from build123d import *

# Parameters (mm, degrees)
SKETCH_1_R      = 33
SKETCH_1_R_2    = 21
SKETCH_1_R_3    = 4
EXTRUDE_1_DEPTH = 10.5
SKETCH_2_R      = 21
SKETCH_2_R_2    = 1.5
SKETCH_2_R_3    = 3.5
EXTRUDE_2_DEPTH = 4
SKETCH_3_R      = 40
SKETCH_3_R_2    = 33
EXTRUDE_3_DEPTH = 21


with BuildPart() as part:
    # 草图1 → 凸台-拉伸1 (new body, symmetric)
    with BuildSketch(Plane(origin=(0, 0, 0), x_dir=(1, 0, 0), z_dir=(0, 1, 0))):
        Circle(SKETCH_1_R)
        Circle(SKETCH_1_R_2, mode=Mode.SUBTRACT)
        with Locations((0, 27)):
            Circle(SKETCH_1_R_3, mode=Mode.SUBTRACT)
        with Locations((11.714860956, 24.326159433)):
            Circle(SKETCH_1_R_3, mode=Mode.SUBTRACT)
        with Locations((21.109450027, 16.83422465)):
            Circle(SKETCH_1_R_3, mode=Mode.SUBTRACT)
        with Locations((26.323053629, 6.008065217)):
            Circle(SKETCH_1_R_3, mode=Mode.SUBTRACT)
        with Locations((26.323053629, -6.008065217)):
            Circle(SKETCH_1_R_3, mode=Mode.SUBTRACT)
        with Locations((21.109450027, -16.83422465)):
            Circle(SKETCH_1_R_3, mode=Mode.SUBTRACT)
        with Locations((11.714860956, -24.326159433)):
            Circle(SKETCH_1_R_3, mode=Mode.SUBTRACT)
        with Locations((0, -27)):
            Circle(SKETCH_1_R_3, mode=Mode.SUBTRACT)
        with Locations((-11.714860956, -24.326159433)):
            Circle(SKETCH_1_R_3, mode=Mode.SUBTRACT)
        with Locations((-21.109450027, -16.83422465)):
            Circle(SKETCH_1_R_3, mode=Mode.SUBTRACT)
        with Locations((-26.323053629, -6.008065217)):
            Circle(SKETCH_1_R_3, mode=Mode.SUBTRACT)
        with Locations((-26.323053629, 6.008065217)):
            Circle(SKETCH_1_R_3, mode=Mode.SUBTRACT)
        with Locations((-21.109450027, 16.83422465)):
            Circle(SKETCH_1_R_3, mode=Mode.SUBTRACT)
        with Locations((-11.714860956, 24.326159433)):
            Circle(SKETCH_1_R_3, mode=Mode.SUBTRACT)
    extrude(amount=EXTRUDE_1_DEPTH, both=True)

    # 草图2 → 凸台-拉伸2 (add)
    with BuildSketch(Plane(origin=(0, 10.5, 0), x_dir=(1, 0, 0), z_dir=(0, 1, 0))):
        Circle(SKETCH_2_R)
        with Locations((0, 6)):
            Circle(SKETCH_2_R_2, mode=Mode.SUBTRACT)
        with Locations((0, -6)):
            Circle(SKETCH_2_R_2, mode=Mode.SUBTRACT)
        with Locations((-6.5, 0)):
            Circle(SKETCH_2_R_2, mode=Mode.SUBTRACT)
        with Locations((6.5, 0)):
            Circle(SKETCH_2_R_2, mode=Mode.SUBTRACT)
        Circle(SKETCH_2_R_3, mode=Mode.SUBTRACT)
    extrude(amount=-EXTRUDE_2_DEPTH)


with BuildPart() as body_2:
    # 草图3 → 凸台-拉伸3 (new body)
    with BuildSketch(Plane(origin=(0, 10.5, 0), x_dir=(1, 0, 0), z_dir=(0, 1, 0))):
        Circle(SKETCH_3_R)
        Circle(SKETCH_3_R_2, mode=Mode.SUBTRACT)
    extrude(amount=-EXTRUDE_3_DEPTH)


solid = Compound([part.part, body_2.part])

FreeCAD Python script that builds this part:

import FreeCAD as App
import Part
import Sketcher

doc = App.newDocument("Part")
body = doc.addObject("PartDesign::Body", "Body")

sketch1 = body.newObject("Sketcher::SketchObject", "Sketch")
sketch1.AttachmentSupport = (doc.getObject("XZ_Plane"), [""])
sketch1.MapMode = "FlatFace"
sketch1.addGeometry([
    Part.Circle(App.Vector(0, 0, 0), App.Vector(0, 0, 1), 33),
    Part.Circle(App.Vector(-21.10945, 16.834225, 0), App.Vector(0, 0, 1), 4),
    Part.Circle(App.Vector(-11.714861, 24.326159, 0), App.Vector(0, 0, 1), 4),
    Part.Circle(App.Vector(0, 27, 0), App.Vector(0, 0, 1), 4),
    Part.Circle(App.Vector(-26.323054, 6.008065, 0), App.Vector(0, 0, 1), 4),
    Part.Circle(App.Vector(11.714861, 24.326159, 0), App.Vector(0, 0, 1), 4),
    Part.Circle(App.Vector(21.10945, 16.834225, 0), App.Vector(0, 0, 1), 4),
    Part.Circle(App.Vector(26.323054, 6.008065, 0), App.Vector(0, 0, 1), 4),
    Part.Circle(App.Vector(-26.323054, -6.008065, 0), App.Vector(0, 0, 1), 4),
    Part.Circle(App.Vector(0, 0, 0), App.Vector(0, 0, 1), 21),
    Part.Circle(App.Vector(-21.10945, -16.834225, 0), App.Vector(0, 0, 1), 4),
    Part.Circle(App.Vector(-11.714861, -24.326159, 0), App.Vector(0, 0, 1), 4),
    Part.Circle(App.Vector(0, -27, 0), App.Vector(0, 0, 1), 4),
    Part.Circle(App.Vector(26.323054, -6.008065, 0), App.Vector(0, 0, 1), 4),
    Part.Circle(App.Vector(11.714861, -24.326159, 0), App.Vector(0, 0, 1), 4),
    Part.Circle(App.Vector(21.10945, -16.834225, 0), App.Vector(0, 0, 1), 4),
], False)
sketch1.addConstraint([
    Sketcher.Constraint("Coincident", 0, 3, -1, 1),
    Sketcher.Constraint("Coincident", 9, 3, -1, 1),
    Sketcher.Constraint("Equal", 1, 2),
    Sketcher.Constraint("Equal", 2, 3),
    Sketcher.Constraint("Equal", 3, 4),
    Sketcher.Constraint("Equal", 4, 5),
    Sketcher.Constraint("Equal", 5, 6),
    Sketcher.Constraint("Equal", 6, 7),
    Sketcher.Constraint("Equal", 7, 8),
    Sketcher.Constraint("Equal", 8, 10),
    Sketcher.Constraint("Equal", 10, 11),
    Sketcher.Constraint("Equal", 11, 12),
    Sketcher.Constraint("Equal", 12, 13),
    Sketcher.Constraint("Equal", 13, 14),
    Sketcher.Constraint("Equal", 14, 15),
    Sketcher.Constraint("Symmetric", 7, 3, 8, 3, -1, 1),
    Sketcher.Constraint("Symmetric", 6, 3, 10, 3, -1, 1),
    Sketcher.Constraint("Symmetric", 5, 3, 11, 3, -1, 1),
    Sketcher.Constraint("Symmetric", 3, 3, 12, 3, -1, 1),
    Sketcher.Constraint("Symmetric", 4, 3, 13, 3, -1, 1),
    Sketcher.Constraint("Symmetric", 2, 3, 14, 3, -1, 1),
    Sketcher.Constraint("Symmetric", 1, 3, 15, 3, -1, 1),
    Sketcher.Constraint("Symmetric", 2, 3, 5, 3, -2),
    Sketcher.Constraint("Symmetric", 1, 3, 6, 3, -2),
    Sketcher.Constraint("Symmetric", 4, 3, 7, 3, -2),
    Sketcher.Constraint("PointOnObject", 3, 3, -2),
    Sketcher.Constraint("Diameter", 0, 66.0),
    Sketcher.Constraint("Diameter", 1, 8.0),
    Sketcher.Constraint("Diameter", 9, 42.0),
    Sketcher.Constraint("DistanceY", -1, 1, 3, 3, 27.0),
    Sketcher.Constraint("DistanceX", 1, 3, 6, 3, 42.2189),
    Sketcher.Constraint("DistanceX", 2, 3, -1, 1, 11.714861),
    Sketcher.Constraint("DistanceY", -1, 1, 2, 3, 24.326159),
    Sketcher.Constraint("DistanceY", 4, 3, 1, 3, 10.826159),
    Sketcher.Constraint("DistanceY", 8, 3, 4, 3, 12.01613),
    Sketcher.Constraint("DistanceX", 4, 3, -1, 1, 26.323054),
])
pad1 = body.newObject("PartDesign::Pad", "Pad")
pad1.Profile = sketch1
pad1.Length = 21
pad1.Midplane = True

sketch2 = body.newObject("Sketcher::SketchObject", "Sketch001")
sketch2.AttachmentSupport = (doc.getObject("XZ_Plane"), [""])
sketch2.MapMode = "FlatFace"
sketch2.AttachmentOffset = App.Placement(App.Vector(0, 0, -10.5), App.Rotation())
sketch2.addGeometry([
    Part.Circle(App.Vector(0, 0, 0), App.Vector(0, 0, 1), 21),
    Part.Circle(App.Vector(0, 6, 0), App.Vector(0, 0, 1), 1.5),
    Part.Circle(App.Vector(-6.5, 0, 0), App.Vector(0, 0, 1), 1.5),
    Part.Circle(App.Vector(0, 0, 0), App.Vector(0, 0, 1), 3.5),
    Part.Circle(App.Vector(6.5, 0, 0), App.Vector(0, 0, 1), 1.5),
    Part.Circle(App.Vector(0, -6, 0), App.Vector(0, 0, 1), 1.5),
], False)
sketch2.addConstraint([
    Sketcher.Constraint("Coincident", 0, 3, -1, 1),
    Sketcher.Constraint("Coincident", 3, 3, -1, 1),
    Sketcher.Constraint("Equal", 1, 2),
    Sketcher.Constraint("Equal", 2, 4),
    Sketcher.Constraint("Equal", 4, 5),
    Sketcher.Constraint("Symmetric", 2, 3, 4, 3, -1, 1),
    Sketcher.Constraint("Symmetric", 1, 3, 5, 3, -1, 1),
    Sketcher.Constraint("PointOnObject", 1, 3, -2),
    Sketcher.Constraint("PointOnObject", 2, 3, -1),
    Sketcher.Constraint("Diameter", 0, 42.0),
    Sketcher.Constraint("Diameter", 1, 3.0),
    Sketcher.Constraint("Diameter", 3, 7.0),
    Sketcher.Constraint("DistanceY", -1, 1, 1, 3, 6.0),
    Sketcher.Constraint("DistanceX", 2, 3, 4, 3, 13.0),
])
pad2 = body.newObject("PartDesign::Pad", "Pad001")
pad2.Profile = sketch2
pad2.Length = 4
body2 = doc.addObject("PartDesign::Body", "Body001")

sketch3 = body2.newObject("Sketcher::SketchObject", "Sketch002")
sketch3.AttachmentSupport = (doc.getObject("XZ_Plane001"), [""])
sketch3.MapMode = "FlatFace"
sketch3.AttachmentOffset = App.Placement(App.Vector(0, 0, -10.5), App.Rotation())
sketch3.addGeometry([
    Part.Circle(App.Vector(0, 0, 0), App.Vector(0, 0, 1), 40),
    Part.Circle(App.Vector(0, 0, 0), App.Vector(0, 0, 1), 33),
], False)
sketch3.addConstraint([
    Sketcher.Constraint("Coincident", 0, 3, -1, 1),
    Sketcher.Constraint("Coincident", 1, 3, -1, 1),
    Sketcher.Constraint("Diameter", 0, 80.0),
    Sketcher.Constraint("Diameter", 1, 66.0),
])
pad3 = body2.newObject("PartDesign::Pad", "Pad002")
pad3.Profile = sketch3
pad3.Length = 21

doc.recompute()
